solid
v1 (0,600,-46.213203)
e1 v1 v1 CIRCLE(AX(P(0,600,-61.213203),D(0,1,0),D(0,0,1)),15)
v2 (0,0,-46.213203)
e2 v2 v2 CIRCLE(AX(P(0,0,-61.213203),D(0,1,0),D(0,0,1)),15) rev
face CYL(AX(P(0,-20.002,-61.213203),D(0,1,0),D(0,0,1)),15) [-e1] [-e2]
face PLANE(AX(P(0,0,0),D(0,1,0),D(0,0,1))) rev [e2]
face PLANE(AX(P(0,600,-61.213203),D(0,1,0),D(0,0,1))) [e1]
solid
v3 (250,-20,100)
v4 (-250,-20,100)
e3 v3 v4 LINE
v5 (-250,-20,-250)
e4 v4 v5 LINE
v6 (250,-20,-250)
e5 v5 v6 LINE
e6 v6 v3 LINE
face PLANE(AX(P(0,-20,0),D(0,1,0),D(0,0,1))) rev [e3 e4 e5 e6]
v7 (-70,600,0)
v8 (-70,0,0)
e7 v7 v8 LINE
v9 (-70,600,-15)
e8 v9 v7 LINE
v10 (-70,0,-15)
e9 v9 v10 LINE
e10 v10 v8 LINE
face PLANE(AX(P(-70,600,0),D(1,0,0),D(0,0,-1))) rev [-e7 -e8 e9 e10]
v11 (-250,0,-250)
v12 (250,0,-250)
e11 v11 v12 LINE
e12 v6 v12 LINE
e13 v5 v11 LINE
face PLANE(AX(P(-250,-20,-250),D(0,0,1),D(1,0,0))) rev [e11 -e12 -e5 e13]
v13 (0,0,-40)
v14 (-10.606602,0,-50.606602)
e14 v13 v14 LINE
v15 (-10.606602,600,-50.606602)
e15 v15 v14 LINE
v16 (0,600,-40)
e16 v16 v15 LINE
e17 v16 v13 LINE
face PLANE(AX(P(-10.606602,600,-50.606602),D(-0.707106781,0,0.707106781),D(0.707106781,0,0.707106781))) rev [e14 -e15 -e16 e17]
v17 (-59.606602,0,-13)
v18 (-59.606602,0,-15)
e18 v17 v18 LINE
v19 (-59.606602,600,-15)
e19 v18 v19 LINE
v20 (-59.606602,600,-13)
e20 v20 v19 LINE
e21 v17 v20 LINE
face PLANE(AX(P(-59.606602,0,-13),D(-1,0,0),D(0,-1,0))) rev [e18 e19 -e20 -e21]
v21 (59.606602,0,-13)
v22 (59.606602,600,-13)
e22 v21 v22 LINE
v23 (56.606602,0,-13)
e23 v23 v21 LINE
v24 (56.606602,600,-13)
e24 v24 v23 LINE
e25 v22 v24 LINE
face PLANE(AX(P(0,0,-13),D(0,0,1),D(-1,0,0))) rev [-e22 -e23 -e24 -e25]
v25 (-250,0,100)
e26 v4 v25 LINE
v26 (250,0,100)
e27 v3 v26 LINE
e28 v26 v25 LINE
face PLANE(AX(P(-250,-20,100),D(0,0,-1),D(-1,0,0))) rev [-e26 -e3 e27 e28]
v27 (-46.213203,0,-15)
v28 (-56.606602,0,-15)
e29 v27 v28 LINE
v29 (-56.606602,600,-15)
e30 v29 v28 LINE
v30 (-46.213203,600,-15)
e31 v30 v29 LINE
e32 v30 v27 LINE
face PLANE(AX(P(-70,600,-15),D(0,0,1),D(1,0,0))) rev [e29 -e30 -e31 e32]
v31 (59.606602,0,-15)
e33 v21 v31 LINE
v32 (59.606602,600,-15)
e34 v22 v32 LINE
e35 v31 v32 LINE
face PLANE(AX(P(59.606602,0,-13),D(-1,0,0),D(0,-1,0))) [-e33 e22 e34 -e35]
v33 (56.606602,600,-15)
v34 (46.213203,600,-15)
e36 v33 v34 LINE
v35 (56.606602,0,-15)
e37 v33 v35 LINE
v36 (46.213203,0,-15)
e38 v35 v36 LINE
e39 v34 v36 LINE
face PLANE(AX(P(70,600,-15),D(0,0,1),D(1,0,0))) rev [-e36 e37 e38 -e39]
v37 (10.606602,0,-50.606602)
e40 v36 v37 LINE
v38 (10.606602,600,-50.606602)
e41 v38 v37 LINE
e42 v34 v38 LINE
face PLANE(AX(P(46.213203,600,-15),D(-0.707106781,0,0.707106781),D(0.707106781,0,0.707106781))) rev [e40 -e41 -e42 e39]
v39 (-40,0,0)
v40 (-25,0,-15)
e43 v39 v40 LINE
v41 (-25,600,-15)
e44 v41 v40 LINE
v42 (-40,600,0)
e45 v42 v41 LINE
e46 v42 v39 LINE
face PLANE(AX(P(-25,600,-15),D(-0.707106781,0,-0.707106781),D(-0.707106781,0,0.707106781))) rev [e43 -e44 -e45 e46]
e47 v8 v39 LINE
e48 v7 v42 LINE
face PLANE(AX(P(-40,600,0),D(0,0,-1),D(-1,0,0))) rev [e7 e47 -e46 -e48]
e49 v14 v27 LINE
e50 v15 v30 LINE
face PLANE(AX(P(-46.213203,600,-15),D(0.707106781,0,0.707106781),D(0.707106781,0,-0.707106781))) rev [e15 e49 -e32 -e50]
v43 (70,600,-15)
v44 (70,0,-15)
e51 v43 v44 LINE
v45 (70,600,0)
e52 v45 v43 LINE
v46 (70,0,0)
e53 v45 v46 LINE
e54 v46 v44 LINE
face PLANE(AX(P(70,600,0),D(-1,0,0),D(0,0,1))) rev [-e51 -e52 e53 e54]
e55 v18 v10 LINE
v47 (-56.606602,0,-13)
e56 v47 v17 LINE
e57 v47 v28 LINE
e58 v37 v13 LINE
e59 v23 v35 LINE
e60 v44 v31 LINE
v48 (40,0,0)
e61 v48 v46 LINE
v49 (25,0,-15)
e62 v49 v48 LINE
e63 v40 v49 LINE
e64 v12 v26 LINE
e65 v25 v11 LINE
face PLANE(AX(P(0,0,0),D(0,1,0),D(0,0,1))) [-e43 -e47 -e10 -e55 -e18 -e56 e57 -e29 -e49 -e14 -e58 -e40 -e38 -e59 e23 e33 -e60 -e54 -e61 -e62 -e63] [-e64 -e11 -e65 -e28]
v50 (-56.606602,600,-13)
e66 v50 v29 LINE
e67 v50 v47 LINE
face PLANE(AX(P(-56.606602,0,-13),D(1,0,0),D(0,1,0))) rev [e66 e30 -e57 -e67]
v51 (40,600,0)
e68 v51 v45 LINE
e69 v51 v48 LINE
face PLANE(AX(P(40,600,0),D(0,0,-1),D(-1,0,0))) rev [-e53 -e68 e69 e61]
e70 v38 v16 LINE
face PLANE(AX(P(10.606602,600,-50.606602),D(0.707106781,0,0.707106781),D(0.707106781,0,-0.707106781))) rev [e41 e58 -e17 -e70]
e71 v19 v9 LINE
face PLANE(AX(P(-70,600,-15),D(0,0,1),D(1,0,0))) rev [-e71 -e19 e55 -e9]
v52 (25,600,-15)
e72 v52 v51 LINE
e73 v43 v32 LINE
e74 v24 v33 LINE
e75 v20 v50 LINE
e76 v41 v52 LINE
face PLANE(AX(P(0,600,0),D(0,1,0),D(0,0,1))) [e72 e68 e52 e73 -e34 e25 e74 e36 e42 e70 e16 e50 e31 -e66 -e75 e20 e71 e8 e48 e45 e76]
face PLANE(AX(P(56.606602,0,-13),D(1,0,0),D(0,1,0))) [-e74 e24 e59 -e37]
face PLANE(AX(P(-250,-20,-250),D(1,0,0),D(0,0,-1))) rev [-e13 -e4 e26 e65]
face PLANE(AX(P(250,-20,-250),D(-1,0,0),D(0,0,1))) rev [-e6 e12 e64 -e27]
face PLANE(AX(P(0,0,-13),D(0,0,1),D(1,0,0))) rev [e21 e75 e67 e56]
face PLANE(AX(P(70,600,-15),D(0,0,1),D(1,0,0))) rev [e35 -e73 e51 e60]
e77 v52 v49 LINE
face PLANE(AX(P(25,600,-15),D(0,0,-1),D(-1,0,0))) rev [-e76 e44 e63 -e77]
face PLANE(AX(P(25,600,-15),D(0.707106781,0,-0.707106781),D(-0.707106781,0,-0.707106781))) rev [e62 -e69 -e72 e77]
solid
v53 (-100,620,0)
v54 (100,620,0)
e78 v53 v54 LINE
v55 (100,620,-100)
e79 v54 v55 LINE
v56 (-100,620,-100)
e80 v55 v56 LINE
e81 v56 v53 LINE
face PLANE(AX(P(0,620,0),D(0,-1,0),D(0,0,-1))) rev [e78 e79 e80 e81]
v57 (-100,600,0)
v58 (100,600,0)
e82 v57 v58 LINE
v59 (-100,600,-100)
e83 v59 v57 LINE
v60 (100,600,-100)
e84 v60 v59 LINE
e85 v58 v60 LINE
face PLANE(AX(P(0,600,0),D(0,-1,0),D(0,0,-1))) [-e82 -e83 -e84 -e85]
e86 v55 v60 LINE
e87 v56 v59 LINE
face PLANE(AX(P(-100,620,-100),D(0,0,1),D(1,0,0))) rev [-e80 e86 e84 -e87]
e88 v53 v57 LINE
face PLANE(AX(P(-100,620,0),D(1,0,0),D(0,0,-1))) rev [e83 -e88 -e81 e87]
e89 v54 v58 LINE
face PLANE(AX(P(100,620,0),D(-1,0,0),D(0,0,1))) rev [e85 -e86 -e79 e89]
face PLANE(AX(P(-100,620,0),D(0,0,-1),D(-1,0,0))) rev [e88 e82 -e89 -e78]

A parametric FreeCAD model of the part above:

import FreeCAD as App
import Part
import Sketcher

V = App.Vector


def add_polygon(sketch, points):
    """Adds a closed chain of lines whose ends are joined by coincident constraints."""
    first, n = sketch.GeometryCount, len(points)
    for a, b in zip(points, points[1:] + points[:1]):
        sketch.addGeometry(Part.LineSegment(App.Vector(*a, 0), App.Vector(*b, 0)), False)
    for i in range(n):
        sketch.addConstraint(Sketcher.Constraint("Coincident", first + i, 2, first + (i + 1) % n, 1))

doc = App.newDocument("Part")
body = doc.addObject("PartDesign::Body", "Body")

# Sketch on XZ plane
sketch1 = body.newObject("Sketcher::SketchObject", "Sketch")
sketch1.AttachmentSupport = (doc.getObject("XZ_Plane"), [""])
sketch1.MapMode = "FlatFace"
add_polygon(sketch1, [(-25, -15), (25, -15), (40, 0), (70, 0), (70, -15), (46, -15), (11, -51), (0, -40), (-11, -51), (-46, -15), (-70, -15), (-70, 0), (-40, 0)])  # lines 0-12
sketch1.addConstraint(Sketcher.Constraint("Horizontal", 0))
sketch1.addConstraint(Sketcher.Constraint("Horizontal", 2))
sketch1.addConstraint(Sketcher.Constraint("Vertical", 3))
sketch1.addConstraint(Sketcher.Constraint("Horizontal", 4))
sketch1.addConstraint(Sketcher.Constraint("Horizontal", 9))
sketch1.addConstraint(Sketcher.Constraint("Vertical", 10))
sketch1.addConstraint(Sketcher.Constraint("Horizontal", 11))
sketch1.addConstraint(Sketcher.Constraint("Symmetric", 2, 2, 10, 2, -1, 1))
sketch1.addConstraint(Sketcher.Constraint("Symmetric", 5, 2, 7, 2, -2))
sketch1.addConstraint(Sketcher.Constraint("Symmetric", 4, 2, 8, 2, -2))
sketch1.addConstraint(Sketcher.Constraint("Symmetric", 1, 2, 11, 2, -2))
sketch1.addConstraint(Sketcher.Constraint("PointOnObject", 6, 2, -2))
sketch1.addConstraint(Sketcher.Constraint("Parallel", 1, 5))
sketch1.addConstraint(Sketcher.Constraint("Perpendicular", 5, 6))
sketch1.addConstraint(Sketcher.Constraint("Perpendicular", 6, 7))
sketch1.addConstraint(Sketcher.Constraint("Parallel", 8, 12))
sketch1.addConstraint(Sketcher.Constraint("Horizontal", 0, 2, 3, 2))
sketch1.addConstraint(Sketcher.Constraint("DistanceX", 0, 1, 0, 2, 50.0))
sketch1.addConstraint(Sketcher.Constraint("DistanceX", 2, 1, 2, 2, 30.0))
sketch1.addConstraint(Sketcher.Constraint("DistanceY", 3, 2, 3, 1, 15.0))
sketch1.addConstraint(Sketcher.Constraint("Distance", 6, 15.0))
sketch1.addConstraint(Sketcher.Constraint("DistanceY", 6, 2, -1, 1, 40.0))
pad1 = body.newObject("PartDesign::Pad", "Pad")
pad1.Profile = sketch1
pad1.Length = 600
pad1.Reversed = True

# Sketch on XZ plane
sketch2 = body.newObject("Sketcher::SketchObject", "Sketch001")
sketch2.AttachmentSupport = (doc.getObject("XZ_Plane"), [""])
sketch2.MapMode = "FlatFace"
add_polygon(sketch2, [(-250, 100), (-250, -250), (250, -250), (250, 100)])  # lines 0-3
sketch2.addConstraint(Sketcher.Constraint("Vertical", 0))
sketch2.addConstraint(Sketcher.Constraint("Horizontal", 1))
sketch2.addConstraint(Sketcher.Constraint("Vertical", 2))
sketch2.addConstraint(Sketcher.Constraint("Horizontal", 3))
sketch2.addConstraint(Sketcher.Constraint("DistanceX", 1, 1, 1, 2, 500.0))
sketch2.addConstraint(Sketcher.Constraint("DistanceY", 0, 2, 0, 1, 350.0))
sketch2.addConstraint(Sketcher.Constraint("DistanceX", 0, 2, -1, 1, 250.0))
sketch2.addConstraint(Sketcher.Constraint("DistanceY", 0, 2, -1, 1, 250.0))
pad2 = body.newObject("PartDesign::Pad", "Pad001")
pad2.Profile = sketch2
pad2.Length = 20

# Sketch on XY plane
sketch3 = body.newObject("Sketcher::SketchObject", "Sketch002")
sketch3.AttachmentSupport = (doc.getObject("XY_Plane"), [""])
sketch3.MapMode = "FlatFace"
sketch3.AttachmentOffset = App.Placement(V(0, 0, -15), App.Rotation())
add_polygon(sketch3, [(-56.6, 600), (-56.6, 0), (-59.6, 0), (-59.6, 600)])  # lines 0-3
sketch3.addConstraint(Sketcher.Constraint("Vertical", 0))
sketch3.addConstraint(Sketcher.Constraint("Horizontal", 1))
sketch3.addConstraint(Sketcher.Constraint("Vertical", 2))
sketch3.addConstraint(Sketcher.Constraint("Horizontal", 3))
sketch3.addConstraint(Sketcher.Constraint("PointOnObject", 0, 2, -1))
sketch3.addConstraint(Sketcher.Constraint("DistanceX", 1, 2, 1, 1, 3.0))
sketch3.addConstraint(Sketcher.Constraint("DistanceY", 0, 2, 0, 1, 600.0))
sketch3.addConstraint(Sketcher.Constraint("DistanceX", 0, 2, -1, 1, 56.606602))
pocket1 = body.newObject("PartDesign::Pocket", "Pocket")
pocket1.Profile = sketch3
pocket1.Length = 2
pocket1.Reversed = True
doc.recompute()

mirrored = body.newObject("PartDesign::Mirrored", "Mirrored")
mirrored.Originals = [pocket1]
mirrored.MirrorPlane = (doc.getObject("YZ_Plane"), [""])
body.Tip = mirrored
body2 = doc.addObject("PartDesign::Body", "Body001")

# Sketch on XZ plane
sketch4 = body2.newObject("Sketcher::SketchObject", "Sketch003")
sketch4.AttachmentSupport = (doc.getObject("XZ_Plane001"), [""])
sketch4.MapMode = "FlatFace"
sketch4.AttachmentOffset = App.Placement(V(0, 0, -600), App.Rotation())
sketch4.addGeometry(Part.Circle(V(0, -61, 0), V(0, 0, 1), 15), False)
sketch4.addConstraint(Sketcher.Constraint("PointOnObject", 0, 3, -2))
sketch4.addConstraint(Sketcher.Constraint("Diameter", 0, 30.0))
sketch4.addConstraint(Sketcher.Constraint("DistanceY", 0, 3, -1, 1, 61.213203))
pad3 = body2.newObject("PartDesign::Pad", "Pad002")
pad3.Profile = sketch4
pad3.Length = 600
body3 = doc.addObject("PartDesign::Body", "Body002")

# Sketch on XZ plane
sketch5 = body3.newObject("Sketcher::SketchObject", "Sketch004")
sketch5.AttachmentSupport = (doc.getObject("XZ_Plane002"), [""])
sketch5.MapMode = "FlatFace"
sketch5.AttachmentOffset = App.Placement(V(0, 0, -600), App.Rotation())
add_polygon(sketch5, [(-100, -100), (-100, 0), (100, 0), (100, -100)])  # lines 0-3
sketch5.addConstraint(Sketcher.Constraint("Vertical", 0))
sketch5.addConstraint(Sketcher.Constraint("Horizontal", 1))
sketch5.addConstraint(Sketcher.Constraint("Vertical", 2))
sketch5.addConstraint(Sketcher.Constraint("Horizontal", 3))
sketch5.addConstraint(Sketcher.Constraint("Symmetric", 0, 2, 1, 2, -1, 1))
sketch5.addConstraint(Sketcher.Constraint("DistanceX", 1, 1, 1, 2, 200.0))
sketch5.addConstraint(Sketcher.Constraint("DistanceY", 0, 1, 0, 2, 100.0))
pad4 = body3.newObject("PartDesign::Pad", "Pad003")
pad4.Profile = sketch5
pad4.Length = 20
pad4.Reversed = True

doc.recompute()
